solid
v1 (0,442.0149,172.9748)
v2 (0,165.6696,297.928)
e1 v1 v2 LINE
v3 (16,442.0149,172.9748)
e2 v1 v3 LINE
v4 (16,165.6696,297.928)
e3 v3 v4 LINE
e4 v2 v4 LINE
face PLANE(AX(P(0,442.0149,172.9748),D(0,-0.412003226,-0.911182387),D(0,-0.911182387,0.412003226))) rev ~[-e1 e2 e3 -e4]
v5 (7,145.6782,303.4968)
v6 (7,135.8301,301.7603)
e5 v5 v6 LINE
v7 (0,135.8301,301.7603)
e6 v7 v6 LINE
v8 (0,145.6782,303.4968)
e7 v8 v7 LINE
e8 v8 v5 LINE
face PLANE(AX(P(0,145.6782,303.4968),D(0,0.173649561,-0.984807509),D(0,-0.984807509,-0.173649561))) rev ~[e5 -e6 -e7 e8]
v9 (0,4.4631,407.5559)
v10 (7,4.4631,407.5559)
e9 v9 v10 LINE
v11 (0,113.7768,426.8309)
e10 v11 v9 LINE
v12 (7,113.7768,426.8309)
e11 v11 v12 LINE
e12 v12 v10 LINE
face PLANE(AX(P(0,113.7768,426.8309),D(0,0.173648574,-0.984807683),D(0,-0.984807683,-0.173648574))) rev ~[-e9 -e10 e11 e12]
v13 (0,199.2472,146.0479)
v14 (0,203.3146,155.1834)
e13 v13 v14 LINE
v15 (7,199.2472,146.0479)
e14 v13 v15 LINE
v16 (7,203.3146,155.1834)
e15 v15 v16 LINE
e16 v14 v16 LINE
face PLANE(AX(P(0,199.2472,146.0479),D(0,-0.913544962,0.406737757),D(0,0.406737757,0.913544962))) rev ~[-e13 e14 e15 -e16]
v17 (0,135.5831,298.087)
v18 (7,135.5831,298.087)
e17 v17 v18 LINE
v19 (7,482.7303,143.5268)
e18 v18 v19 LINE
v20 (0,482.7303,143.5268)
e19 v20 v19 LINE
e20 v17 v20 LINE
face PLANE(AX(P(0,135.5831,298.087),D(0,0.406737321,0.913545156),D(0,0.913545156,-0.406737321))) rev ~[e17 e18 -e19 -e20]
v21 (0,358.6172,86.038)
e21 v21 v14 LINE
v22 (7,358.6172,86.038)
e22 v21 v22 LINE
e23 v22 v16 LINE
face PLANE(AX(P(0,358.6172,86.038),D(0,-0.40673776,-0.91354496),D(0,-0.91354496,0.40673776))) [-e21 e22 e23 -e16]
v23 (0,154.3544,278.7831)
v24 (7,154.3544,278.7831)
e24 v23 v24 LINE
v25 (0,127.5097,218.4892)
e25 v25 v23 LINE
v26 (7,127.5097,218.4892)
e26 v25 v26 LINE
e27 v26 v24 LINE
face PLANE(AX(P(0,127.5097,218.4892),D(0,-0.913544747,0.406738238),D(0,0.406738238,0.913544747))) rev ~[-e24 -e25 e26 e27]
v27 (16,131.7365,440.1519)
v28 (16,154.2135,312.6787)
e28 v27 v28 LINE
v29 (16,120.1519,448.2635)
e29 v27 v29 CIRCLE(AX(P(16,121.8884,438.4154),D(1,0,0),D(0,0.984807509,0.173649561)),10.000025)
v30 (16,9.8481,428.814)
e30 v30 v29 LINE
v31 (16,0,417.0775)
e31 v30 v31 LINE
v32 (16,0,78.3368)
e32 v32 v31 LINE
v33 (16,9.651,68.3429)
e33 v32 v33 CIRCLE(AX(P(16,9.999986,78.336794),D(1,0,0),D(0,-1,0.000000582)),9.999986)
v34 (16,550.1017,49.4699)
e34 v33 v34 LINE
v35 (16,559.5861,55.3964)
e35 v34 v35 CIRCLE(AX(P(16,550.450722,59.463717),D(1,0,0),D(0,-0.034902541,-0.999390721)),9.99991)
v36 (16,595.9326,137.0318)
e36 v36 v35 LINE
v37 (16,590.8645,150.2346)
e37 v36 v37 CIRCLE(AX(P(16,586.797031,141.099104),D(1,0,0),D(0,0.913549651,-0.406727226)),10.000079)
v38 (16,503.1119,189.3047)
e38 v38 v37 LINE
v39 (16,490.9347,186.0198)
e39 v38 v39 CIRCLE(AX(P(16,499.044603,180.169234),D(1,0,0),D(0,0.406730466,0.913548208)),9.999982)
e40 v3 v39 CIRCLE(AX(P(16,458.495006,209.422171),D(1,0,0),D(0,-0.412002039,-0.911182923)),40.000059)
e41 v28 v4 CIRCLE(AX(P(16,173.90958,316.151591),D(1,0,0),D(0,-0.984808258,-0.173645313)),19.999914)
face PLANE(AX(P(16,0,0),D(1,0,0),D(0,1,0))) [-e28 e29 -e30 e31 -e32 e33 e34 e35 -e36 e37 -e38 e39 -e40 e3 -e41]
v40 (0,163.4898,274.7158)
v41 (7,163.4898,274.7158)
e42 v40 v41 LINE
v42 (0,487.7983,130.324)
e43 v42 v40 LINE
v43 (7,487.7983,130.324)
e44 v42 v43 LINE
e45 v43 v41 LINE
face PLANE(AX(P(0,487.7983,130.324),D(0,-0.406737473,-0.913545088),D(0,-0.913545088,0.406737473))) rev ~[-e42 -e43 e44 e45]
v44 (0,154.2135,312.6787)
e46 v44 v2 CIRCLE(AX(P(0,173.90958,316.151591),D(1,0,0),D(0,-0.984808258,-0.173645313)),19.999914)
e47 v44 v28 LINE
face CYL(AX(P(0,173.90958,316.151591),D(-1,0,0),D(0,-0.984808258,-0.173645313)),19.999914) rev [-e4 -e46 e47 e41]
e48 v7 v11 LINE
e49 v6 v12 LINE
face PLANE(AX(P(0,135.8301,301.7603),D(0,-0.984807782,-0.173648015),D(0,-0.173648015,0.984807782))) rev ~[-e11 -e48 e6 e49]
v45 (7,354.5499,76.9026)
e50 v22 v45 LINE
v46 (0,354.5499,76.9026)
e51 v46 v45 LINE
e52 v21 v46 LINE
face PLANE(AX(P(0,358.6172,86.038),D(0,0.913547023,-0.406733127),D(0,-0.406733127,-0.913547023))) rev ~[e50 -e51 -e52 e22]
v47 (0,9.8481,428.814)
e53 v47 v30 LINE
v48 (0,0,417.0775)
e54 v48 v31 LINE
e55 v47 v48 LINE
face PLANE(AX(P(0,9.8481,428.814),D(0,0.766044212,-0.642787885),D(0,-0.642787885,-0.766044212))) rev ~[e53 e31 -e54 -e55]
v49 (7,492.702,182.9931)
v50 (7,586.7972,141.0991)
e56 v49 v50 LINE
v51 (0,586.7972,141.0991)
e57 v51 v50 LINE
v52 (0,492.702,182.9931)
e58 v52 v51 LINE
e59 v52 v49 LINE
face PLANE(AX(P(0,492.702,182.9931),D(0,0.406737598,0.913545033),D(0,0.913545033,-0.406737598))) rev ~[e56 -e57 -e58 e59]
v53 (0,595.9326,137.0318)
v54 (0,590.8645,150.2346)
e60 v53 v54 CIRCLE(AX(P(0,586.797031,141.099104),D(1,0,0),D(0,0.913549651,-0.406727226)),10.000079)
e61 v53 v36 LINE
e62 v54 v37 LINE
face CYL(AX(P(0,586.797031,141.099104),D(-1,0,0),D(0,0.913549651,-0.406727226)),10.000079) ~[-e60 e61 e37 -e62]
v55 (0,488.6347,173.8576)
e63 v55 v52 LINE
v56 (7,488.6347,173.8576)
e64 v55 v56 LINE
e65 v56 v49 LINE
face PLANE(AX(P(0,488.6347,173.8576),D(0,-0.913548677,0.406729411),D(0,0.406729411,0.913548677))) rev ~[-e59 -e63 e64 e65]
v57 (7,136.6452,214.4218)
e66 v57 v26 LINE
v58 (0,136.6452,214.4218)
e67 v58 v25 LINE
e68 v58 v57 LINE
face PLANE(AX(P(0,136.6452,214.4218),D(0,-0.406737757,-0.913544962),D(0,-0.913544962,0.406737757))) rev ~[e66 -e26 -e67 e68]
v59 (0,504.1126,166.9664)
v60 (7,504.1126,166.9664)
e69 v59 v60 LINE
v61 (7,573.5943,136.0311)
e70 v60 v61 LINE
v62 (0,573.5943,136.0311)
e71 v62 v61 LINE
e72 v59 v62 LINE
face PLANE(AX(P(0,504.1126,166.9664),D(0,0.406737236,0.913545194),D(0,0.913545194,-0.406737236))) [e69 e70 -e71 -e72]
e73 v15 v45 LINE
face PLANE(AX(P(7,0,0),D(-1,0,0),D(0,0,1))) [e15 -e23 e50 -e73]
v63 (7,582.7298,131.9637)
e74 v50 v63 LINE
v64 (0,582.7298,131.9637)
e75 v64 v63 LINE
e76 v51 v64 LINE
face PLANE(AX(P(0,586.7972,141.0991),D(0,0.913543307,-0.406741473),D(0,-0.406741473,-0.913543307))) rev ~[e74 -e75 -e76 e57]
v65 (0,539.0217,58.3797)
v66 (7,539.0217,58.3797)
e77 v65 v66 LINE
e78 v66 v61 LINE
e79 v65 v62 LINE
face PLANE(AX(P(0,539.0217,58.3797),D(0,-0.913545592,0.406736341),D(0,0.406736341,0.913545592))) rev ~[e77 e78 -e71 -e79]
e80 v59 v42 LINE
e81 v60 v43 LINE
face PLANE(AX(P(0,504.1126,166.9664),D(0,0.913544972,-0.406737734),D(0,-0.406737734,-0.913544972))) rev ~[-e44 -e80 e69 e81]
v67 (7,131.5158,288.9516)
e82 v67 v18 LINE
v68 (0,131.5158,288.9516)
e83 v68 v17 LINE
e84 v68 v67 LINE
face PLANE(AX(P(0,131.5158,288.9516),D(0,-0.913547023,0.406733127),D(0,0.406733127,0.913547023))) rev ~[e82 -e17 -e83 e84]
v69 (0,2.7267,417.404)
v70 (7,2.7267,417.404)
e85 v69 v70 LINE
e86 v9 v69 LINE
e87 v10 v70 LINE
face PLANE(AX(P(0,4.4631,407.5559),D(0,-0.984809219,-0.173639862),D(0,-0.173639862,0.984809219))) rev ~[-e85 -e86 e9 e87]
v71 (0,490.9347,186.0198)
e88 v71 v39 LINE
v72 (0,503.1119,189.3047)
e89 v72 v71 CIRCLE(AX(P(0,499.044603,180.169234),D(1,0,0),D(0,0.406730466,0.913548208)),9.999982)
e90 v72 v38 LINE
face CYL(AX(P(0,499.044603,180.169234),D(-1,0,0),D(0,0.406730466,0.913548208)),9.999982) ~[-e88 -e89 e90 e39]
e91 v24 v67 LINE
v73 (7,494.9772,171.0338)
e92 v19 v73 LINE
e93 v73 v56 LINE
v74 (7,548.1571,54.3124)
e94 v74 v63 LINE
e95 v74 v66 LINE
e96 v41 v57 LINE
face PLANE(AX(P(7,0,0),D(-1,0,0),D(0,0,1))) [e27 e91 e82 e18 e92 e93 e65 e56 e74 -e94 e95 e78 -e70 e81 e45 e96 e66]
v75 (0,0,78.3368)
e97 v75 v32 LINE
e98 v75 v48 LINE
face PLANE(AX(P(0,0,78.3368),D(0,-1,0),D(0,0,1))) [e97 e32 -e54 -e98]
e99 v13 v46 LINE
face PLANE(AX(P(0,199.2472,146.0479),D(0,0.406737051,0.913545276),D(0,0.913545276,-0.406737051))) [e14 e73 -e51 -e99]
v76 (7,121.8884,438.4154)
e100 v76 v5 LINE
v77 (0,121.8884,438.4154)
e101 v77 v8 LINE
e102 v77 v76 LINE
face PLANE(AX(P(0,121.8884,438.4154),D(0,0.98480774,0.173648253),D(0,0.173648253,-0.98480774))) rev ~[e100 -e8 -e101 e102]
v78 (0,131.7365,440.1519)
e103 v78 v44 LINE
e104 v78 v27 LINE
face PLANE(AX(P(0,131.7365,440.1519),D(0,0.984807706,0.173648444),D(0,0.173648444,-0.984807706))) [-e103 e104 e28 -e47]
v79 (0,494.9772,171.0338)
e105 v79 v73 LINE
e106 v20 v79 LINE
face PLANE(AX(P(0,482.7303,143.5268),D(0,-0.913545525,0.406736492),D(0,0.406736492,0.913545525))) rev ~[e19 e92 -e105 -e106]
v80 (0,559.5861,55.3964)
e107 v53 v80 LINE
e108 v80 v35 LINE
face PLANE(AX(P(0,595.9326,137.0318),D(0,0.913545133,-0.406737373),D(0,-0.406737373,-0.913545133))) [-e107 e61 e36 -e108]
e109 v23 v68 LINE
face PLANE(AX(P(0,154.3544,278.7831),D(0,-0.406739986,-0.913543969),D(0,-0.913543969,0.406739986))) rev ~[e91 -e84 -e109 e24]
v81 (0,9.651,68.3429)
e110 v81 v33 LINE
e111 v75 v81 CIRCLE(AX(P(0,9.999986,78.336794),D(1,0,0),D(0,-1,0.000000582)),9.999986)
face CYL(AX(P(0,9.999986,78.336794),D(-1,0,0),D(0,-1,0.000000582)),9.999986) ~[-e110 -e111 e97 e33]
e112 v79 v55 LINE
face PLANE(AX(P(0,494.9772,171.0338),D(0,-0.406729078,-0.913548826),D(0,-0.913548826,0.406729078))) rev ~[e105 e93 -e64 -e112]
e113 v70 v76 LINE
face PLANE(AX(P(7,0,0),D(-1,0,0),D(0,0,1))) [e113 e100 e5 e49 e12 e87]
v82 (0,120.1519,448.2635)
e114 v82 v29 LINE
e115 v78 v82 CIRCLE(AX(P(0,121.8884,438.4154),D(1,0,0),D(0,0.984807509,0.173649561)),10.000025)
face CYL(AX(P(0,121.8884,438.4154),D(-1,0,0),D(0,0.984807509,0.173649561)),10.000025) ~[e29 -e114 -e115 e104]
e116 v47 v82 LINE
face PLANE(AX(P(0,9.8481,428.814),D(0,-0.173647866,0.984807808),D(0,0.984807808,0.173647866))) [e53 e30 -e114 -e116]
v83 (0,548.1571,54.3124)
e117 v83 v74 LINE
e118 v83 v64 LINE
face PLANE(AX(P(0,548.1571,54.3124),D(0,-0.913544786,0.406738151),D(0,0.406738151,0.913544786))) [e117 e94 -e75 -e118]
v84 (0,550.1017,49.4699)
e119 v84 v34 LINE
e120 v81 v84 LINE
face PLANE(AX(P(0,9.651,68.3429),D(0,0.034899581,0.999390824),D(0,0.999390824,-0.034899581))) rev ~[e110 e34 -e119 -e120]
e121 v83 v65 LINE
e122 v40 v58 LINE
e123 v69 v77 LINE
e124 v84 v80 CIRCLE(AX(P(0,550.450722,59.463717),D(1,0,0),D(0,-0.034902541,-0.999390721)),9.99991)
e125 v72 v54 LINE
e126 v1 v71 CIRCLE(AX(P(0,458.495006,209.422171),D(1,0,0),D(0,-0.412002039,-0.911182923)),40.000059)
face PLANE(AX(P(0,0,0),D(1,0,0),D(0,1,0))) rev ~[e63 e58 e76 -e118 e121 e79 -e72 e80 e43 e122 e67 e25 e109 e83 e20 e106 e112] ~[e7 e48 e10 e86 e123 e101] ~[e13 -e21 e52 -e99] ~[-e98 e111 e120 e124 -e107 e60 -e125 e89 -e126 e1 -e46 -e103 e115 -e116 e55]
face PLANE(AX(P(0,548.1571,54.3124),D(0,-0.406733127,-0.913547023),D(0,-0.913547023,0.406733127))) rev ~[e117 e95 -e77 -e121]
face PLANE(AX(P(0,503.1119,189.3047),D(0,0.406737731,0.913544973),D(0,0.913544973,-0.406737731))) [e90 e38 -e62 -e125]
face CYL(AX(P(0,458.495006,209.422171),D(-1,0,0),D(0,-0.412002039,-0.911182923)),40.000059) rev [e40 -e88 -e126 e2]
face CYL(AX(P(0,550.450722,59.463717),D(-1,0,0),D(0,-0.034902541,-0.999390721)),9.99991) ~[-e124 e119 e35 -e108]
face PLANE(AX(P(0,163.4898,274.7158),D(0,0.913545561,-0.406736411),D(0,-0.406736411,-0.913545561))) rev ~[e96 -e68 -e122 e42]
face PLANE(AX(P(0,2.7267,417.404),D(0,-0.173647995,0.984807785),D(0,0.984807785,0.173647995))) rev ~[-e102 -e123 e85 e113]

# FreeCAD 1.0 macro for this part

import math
import FreeCAD as App
import Part
import Sketcher
from FreeCAD import Vector
Q = App.Units.Quantity


def add_polygon(sketch, points):
    """Adds a closed chain of lines whose ends are joined by coincident constraints."""
    first, n = sketch.GeometryCount, len(points)
    for a, b in zip(points, points[1:] + points[:1]):
        sketch.addGeometry(Part.LineSegment(App.Vector(*a, 0), App.Vector(*b, 0)), False)
    for i in range(n):
        sketch.addConstraint(Sketcher.Constraint("Coincident", first + i, 2, first + (i + 1) % n, 1))

doc = App.newDocument("Part")
body = doc.addObject("PartDesign::Body", "Body")

# Sketch on YZ plane
sketch1 = doc.addObject("Sketcher::SketchObject", "Sketch")
body.addObject(sketch1)
sketch1.AttachmentSupport = (doc.YZ_Plane, [""])
sketch1.MapMode = "FlatFace"
sketch1.addGeometry([
    Part.LineSegment(Vector(120.1519, 448.2635, 0), Vector(9.8481, 428.814, 0)),  # 0
    Part.LineSegment(Vector(9.8481, 428.814, 0), Vector(0, 417.0775, 0)),  # 1
    Part.LineSegment(Vector(0, 417.0775, 0), Vector(0, 78.3368, 0)),  # 2
    Part.ArcOfCircle(Part.Circle(Vector(10, 78.3368, 0), Vector(0, 0, 1), 10), math.radians(180), math.radians(267.99997)),  # 3
    Part.LineSegment(Vector(9.651, 68.3429, 0), Vector(550.1017, 49.4699, 0)),  # 4
    Part.ArcOfCircle(Part.Circle(Vector(550.4507, 59.4638, 0), Vector(0, 0, 1), 9.999992), math.radians(-92.00003), math.radians(-24.000303)),  # 5
    Part.LineSegment(Vector(559.5861, 55.3964, 0), Vector(595.9326, 137.0318, 0)),  # 6
    Part.ArcOfCircle(Part.Circle(Vector(586.7972, 141.0991, 0), Vector(0, 0, 1), 9.999923), math.radians(-23.999779), math.radians(66.000454)),  # 7
    Part.LineSegment(Vector(590.8645, 150.2346, 0), Vector(503.1119, 189.3047, 0)),  # 8
    Part.ArcOfCircle(Part.Circle(Vector(499.0446, 180.1692, 0), Vector(0, 0, 1), 10.000014), math.radians(66.000454), math.radians(144.192771)),  # 9
    Part.ArcOfCircle(Part.Circle(Vector(458.495, 209.4221, 0), Vector(0, 0, 1), 39.999992), math.radians(-114.330696), math.radians(-35.807029)),  # 10
    Part.LineSegment(Vector(442.0149, 172.9748, 0), Vector(165.6696, 297.928, 0)),  # 11
    Part.ArcOfCircle(Part.Circle(Vector(173.9096, 316.1516, 0), Vector(0, 0, 1), 19.999935), math.radians(-170.000152), math.radians(-114.330625)),  # 12
    Part.LineSegment(Vector(154.2135, 312.6787, 0), Vector(131.7365, 440.1519, 0)),  # 13
    Part.ArcOfCircle(Part.Circle(Vector(121.8884, 438.4154, 0), Vector(0, 0, 1), 10.000025), math.radians(10.00008), math.radians(100.00008)),  # 14
], False)
sketch1.addConstraint([
    Sketcher.Constraint("Coincident", 0, 2, 1, 1),
    Sketcher.Constraint("Coincident", 1, 2, 2, 1),
    Sketcher.Constraint("Tangent", 2, 2, 3, 1),
    Sketcher.Constraint("Tangent", 3, 2, 4, 1),
    Sketcher.Constraint("Tangent", 4, 2, 5, 1),
    Sketcher.Constraint("Tangent", 5, 2, 6, 1),
    Sketcher.Constraint("Tangent", 6, 2, 7, 1),
    Sketcher.Constraint("Tangent", 7, 2, 8, 1),
    Sketcher.Constraint("Tangent", 8, 2, 9, 1),
    Sketcher.Constraint("Tangent", 9, 2, 10, 2),
    Sketcher.Constraint("Tangent", 10, 1, 11, 1),
    Sketcher.Constraint("Tangent", 11, 2, 12, 2),
    Sketcher.Constraint("Tangent", 12, 1, 13, 1),
    Sketcher.Constraint("Tangent", 13, 2, 14, 1),
    Sketcher.Constraint("Tangent", 14, 2, 0, 1),
    Sketcher.Constraint("Vertical", 2),
    Sketcher.Constraint("Equal", 3, 5),
    Sketcher.Constraint("Equal", 5, 7),
    Sketcher.Constraint("Equal", 7, 9),
    Sketcher.Constraint("Equal", 9, 14),
    Sketcher.Constraint("PointOnObject", 1, 2, -2),
    Sketcher.Constraint("Perpendicular", 6, 8),
    Sketcher.Constraint("Perpendicular", 0, 13),
    Sketcher.Constraint("Radius", 3, Q("10 mm")),
    Sketcher.Constraint("Radius", 10, Q("40 mm")),
    Sketcher.Constraint("Radius", 12, Q("20 mm")),
    Sketcher.Constraint("Angle", 1, Q("-130 deg")),
    Sketcher.Constraint("Angle", 0, Q("-170 deg")),
    Sketcher.Constraint("Angle", 4, Q("-2 deg")),
    Sketcher.Constraint("Angle", 6, Q("66 deg")),
    Sketcher.Constraint("Angle", 11, Q("155.6693 deg")),
    Sketcher.Constraint("DistanceY", -1, 1, 4, 2, Q("49.47 mm")),
    Sketcher.Constraint("DistanceY", 7, 3, 9, 3, Q("39.07 mm")),
    Sketcher.Constraint("DistanceX", 9, 2, 9, 3, Q("8.11 mm")),
    Sketcher.Constraint("Distance", 1, Q("15.321 mm")),
    Sketcher.Constraint("Distance", 6, Q("89.361 mm")),
    Sketcher.Constraint("Distance", 11, Q("303.282 mm")),
    Sketcher.Constraint("DistanceY", 2, 2, 2, 1, Q("338.7407 mm")),
    Sketcher.Constraint("DistanceX", -1, 1, 10, 3, Q("458.495 mm")),
])
pad1 = doc.addObject("PartDesign::Pad", "Pad")
body.addObject(pad1)
pad1.Profile = sketch1
pad1.Length = 16

# Sketch on YZ plane
sketch2 = doc.addObject("Sketcher::SketchObject", "Sketch001")
body.addObject(sketch2)
sketch2.AttachmentSupport = (doc.YZ_Plane, [""])
sketch2.MapMode = "FlatFace"
add_polygon(sketch2, [(482.7303, 143.5268), (494.9772, 171.0338), (488.6347, 173.8576), (492.702, 182.9931), (586.7972, 141.0991), (582.729833, 131.963685), (548.1571, 54.3124), (539.0217, 58.3797), (573.5943, 136.0311), (504.1126, 166.9664), (487.7983, 130.324), (163.4898, 274.7158), (136.6452, 214.4218), (127.5097, 218.4892), (154.3544, 278.7831), (131.5158, 288.9516), (135.5831, 298.087)])  # lines 0-16
add_polygon(sketch2, [(145.6782, 303.4968), (135.8301, 301.7603), (113.7768, 426.8309), (4.4631, 407.5559), (2.7267, 417.404), (121.8884, 438.4154)])  # lines 17-22
add_polygon(sketch2, [(354.5499, 76.9026), (199.2472, 146.0479), (203.3146, 155.1834), (358.6172, 86.038)])  # lines 23-26
sketch2.addConstraint([
    Sketcher.Constraint("Perpendicular", 0, 1),
    Sketcher.Constraint("Perpendicular", 1, 2),
    Sketcher.Constraint("Perpendicular", 2, 3),
    Sketcher.Constraint("Perpendicular", 3, 4),
    Sketcher.Constraint("Parallel", 4, 5),
    Sketcher.Constraint("Perpendicular", 5, 6),
    Sketcher.Constraint("Perpendicular", 6, 7),
    Sketcher.Constraint("Perpendicular", 7, 8),
    Sketcher.Constraint("Perpendicular", 8, 9),
    Sketcher.Constraint("Perpendicular", 9, 10),
    Sketcher.Constraint("Perpendicular", 10, 11),
    Sketcher.Constraint("Perpendicular", 11, 12),
    Sketcher.Constraint("Perpendicular", 12, 13),
    Sketcher.Constraint("Perpendicular", 13, 14),
    Sketcher.Constraint("Perpendicular", 14, 15),
    Sketcher.Constraint("Perpendicular", 15, 16),
    Sketcher.Constraint("Perpendicular", 17, 18),
    Sketcher.Constraint("Perpendicular", 18, 19),
    Sketcher.Constraint("Perpendicular", 19, 20),
    Sketcher.Constraint("Perpendicular", 20, 21),
    Sketcher.Constraint("Perpendicular", 21, 22),
    Sketcher.Constraint("Parallel", 16, 23),
    Sketcher.Constraint("Perpendicular", 23, 24),
    Sketcher.Constraint("Perpendicular", 24, 25),
    Sketcher.Constraint("Perpendicular", 25, 26),
    Sketcher.Constraint("Equal", 2, 4),
    Sketcher.Constraint("Equal", 4, 6),
    Sketcher.Constraint("Equal", 5, 7),
    Sketcher.Constraint("Equal", 6, 12),
    Sketcher.Constraint("Equal", 11, 13),
    Sketcher.Constraint("Equal", 12, 15),
    Sketcher.Constraint("Equal", 15, 17),
    Sketcher.Constraint("Equal", 17, 20),
    Sketcher.Constraint("Equal", 20, 24),
    Sketcher.Constraint("Angle", 0, Q("66 deg")),
    Sketcher.Constraint("Angle", 17, Q("-170 deg")),
    Sketcher.Constraint("Distance", 2, Q("10 mm")),
    Sketcher.Constraint("Distance", 3, Q("103 mm")),
    Sketcher.Constraint("Distance", 5, Q("85 mm")),
    Sketcher.Constraint("Distance", 10, Q("355 mm")),
    Sketcher.Constraint("Distance", 11, Q("66 mm")),
    Sketcher.Constraint("Distance", 14, Q("25 mm")),
    Sketcher.Constraint("Distance", 16, Q("380 mm")),
    Sketcher.Constraint("Distance", 18, Q("127 mm")),
    Sketcher.Constraint("Distance", 19, Q("111 mm")),
    Sketcher.Constraint("Distance", 23, Q("170 mm")),
    Sketcher.Constraint("DistanceX", -1, 1, 17, 2, Q("135.83 mm")),
    Sketcher.Constraint("DistanceX", -1, 1, 26, 2, Q("354.55 mm")),
    Sketcher.Constraint("DistanceX", 0, 2, 3, 2, Q("91.82 mm")),
    Sketcher.Constraint("DistanceY", 2, 2, 13, 2, Q("95.79 mm")),
    Sketcher.Constraint("DistanceX", 19, 2, 15, 2, Q("131.12 mm")),
    Sketcher.Constraint("DistanceY", -1, 1, 2, 2, Q("182.993 mm")),
    Sketcher.Constraint("DistanceY", -1, 1, 18, 2, Q("426.831 mm")),
    Sketcher.Constraint("DistanceY", -1, 1, 23, 2, Q("146.048 mm")),
])
pocket1 = doc.addObject("PartDesign::Pocket", "Pocket")
body.addObject(pocket1)
pocket1.Profile = sketch2
pocket1.Length = 7
pocket1.Reversed = True

doc.recompute()
